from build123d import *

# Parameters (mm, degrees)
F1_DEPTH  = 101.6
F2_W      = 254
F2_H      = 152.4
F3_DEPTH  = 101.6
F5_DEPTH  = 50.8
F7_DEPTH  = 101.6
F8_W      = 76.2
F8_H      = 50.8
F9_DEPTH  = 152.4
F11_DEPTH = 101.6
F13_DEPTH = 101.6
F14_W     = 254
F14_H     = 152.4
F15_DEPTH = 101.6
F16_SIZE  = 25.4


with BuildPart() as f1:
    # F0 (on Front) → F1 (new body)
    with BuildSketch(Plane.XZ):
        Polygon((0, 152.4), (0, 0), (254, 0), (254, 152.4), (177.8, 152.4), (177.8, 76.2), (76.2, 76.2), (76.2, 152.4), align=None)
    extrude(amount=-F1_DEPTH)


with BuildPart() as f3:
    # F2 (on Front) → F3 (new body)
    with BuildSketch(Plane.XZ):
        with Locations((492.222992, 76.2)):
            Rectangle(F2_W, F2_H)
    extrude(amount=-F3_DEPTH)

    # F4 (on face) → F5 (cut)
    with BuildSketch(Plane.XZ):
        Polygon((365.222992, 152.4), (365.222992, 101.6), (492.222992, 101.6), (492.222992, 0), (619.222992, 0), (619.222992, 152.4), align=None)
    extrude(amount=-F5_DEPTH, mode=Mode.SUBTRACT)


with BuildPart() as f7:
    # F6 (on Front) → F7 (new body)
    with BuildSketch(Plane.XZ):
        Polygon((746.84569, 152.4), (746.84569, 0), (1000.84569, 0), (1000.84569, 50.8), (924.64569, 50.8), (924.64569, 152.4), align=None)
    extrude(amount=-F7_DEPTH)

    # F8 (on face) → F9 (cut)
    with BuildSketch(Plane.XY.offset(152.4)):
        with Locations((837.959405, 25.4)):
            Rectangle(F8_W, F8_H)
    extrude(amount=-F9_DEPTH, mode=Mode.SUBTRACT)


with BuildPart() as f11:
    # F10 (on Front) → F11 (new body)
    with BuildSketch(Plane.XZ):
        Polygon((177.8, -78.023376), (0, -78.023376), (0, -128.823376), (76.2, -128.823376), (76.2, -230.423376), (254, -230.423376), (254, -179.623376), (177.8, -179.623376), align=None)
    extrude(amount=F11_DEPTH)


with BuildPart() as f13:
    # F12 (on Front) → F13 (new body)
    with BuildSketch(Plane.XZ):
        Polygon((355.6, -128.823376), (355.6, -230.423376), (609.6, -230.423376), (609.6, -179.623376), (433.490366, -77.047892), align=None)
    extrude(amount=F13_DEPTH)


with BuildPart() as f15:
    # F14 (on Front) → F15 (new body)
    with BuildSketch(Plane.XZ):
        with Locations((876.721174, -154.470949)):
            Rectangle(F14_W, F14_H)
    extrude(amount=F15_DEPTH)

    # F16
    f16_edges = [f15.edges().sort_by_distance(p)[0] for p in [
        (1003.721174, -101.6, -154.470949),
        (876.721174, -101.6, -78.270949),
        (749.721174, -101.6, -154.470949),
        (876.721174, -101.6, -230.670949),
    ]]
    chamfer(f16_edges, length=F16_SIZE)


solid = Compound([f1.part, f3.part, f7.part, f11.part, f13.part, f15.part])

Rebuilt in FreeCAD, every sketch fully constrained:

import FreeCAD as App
import Part
import Sketcher

V = App.Vector
Q = App.Units.Quantity


def edges_at(feature, points):
    """Names of the edges that pass closest to the given points."""
    edges = feature.Shape.Edges
    near = lambda p: min(range(len(edges)), key=lambda i: edges[i].distToShape(Part.Vertex(*p))[0])
    return sorted({f"Edge{near(p) + 1}" for p in points})

doc = App.newDocument("Part")
body = doc.addObject("PartDesign::Body", "Body")

# Sketch on XZ plane
sketch1 = body.newObject("Sketcher::SketchObject", "Sketch")
sketch1.AttachmentSupport = (doc.getObject("XZ_Plane"), [""])
sketch1.MapMode = "FlatFace"
sketch1.addGeometry([
    Part.LineSegment(V(0, 152.4, 0), V(0, 0, 0)),  # 0
    Part.LineSegment(V(0, 0, 0), V(254, 0, 0)),  # 1
    Part.LineSegment(V(254, 0, 0), V(254, 152.4, 0)),  # 2
    Part.LineSegment(V(254, 152.4, 0), V(177.8, 152.4, 0)),  # 3
    Part.LineSegment(V(177.8, 152.4, 0), V(177.8, 76.2, 0)),  # 4
    Part.LineSegment(V(177.8, 76.2, 0), V(76.2, 76.2, 0)),  # 5
    Part.LineSegment(V(76.2, 76.2, 0), V(76.2, 152.4, 0)),  # 6
    Part.LineSegment(V(76.2, 152.4, 0), V(0, 152.4, 0)),  # 7
], False)
sketch1.addConstraint([
    Sketcher.Constraint("Coincident", 0, 2, 1, 1),
    Sketcher.Constraint("Coincident", 1, 2, 2, 1),
    Sketcher.Constraint("Coincident", 2, 2, 3, 1),
    Sketcher.Constraint("Coincident", 3, 2, 4, 1),
    Sketcher.Constraint("Coincident", 4, 2, 5, 1),
    Sketcher.Constraint("Coincident", 5, 2, 6, 1),
    Sketcher.Constraint("Coincident", 6, 2, 7, 1),
    Sketcher.Constraint("Coincident", 7, 2, 0, 1),
    Sketcher.Constraint("Vertical", 0),
    Sketcher.Constraint("Horizontal", 1),
    Sketcher.Constraint("Vertical", 2),
    Sketcher.Constraint("Horizontal", 3),
    Sketcher.Constraint("Vertical", 4),
    Sketcher.Constraint("Horizontal", 5),
    Sketcher.Constraint("Vertical", 6),
    Sketcher.Constraint("Horizontal", 7),
    Sketcher.Constraint("Coincident", 0, 2, -1, 1),
    Sketcher.Constraint("Horizontal", 3, 2, 6, 2),
    Sketcher.Constraint("Equal", 3, 7),
    Sketcher.Constraint("Equal", 7, 4),
    Sketcher.Constraint("DistanceX", 1, 1, 1, 2, Q("10 in")),
    Sketcher.Constraint("DistanceX", 3, 2, 3, 1, Q("3 in")),
    Sketcher.Constraint("DistanceY", 0, 2, 0, 1, Q("6 in")),
])
pad1 = body.newObject("PartDesign::Pad", "Pad")
pad1.Profile = sketch1
pad1.Length = Q("4 in")
pad1.Reversed = True
body2 = doc.addObject("PartDesign::Body", "Body001")

# Sketch on XZ plane
sketch2 = body2.newObject("Sketcher::SketchObject", "Sketch001")
sketch2.AttachmentSupport = (doc.getObject("XZ_Plane001"), [""])
sketch2.MapMode = "FlatFace"
sketch2.addGeometry([
    Part.LineSegment(V(365.222992, 152.4, 0), V(365.222992, 0, 0)),
    Part.LineSegment(V(365.222992, 0, 0), V(619.222992, 0, 0)),
    Part.LineSegment(V(619.222992, 0, 0), V(619.222992, 152.4, 0)),
    Part.LineSegment(V(619.222992, 152.4, 0), V(365.222992, 152.4, 0)),
], False)
sketch2.addConstraint([
    Sketcher.Constraint("Coincident", 0, 2, 1, 1),
    Sketcher.Constraint("Coincident", 1, 2, 2, 1),
    Sketcher.Constraint("Coincident", 2, 2, 3, 1),
    Sketcher.Constraint("Coincident", 3, 2, 0, 1),
    Sketcher.Constraint("Vertical", 0),
    Sketcher.Constraint("Horizontal", 1),
    Sketcher.Constraint("Vertical", 2),
    Sketcher.Constraint("Horizontal", 3),
    Sketcher.Constraint("PointOnObject", 0, 2, -1),
    Sketcher.Constraint("DistanceX", 1, 1, 1, 2, Q("10 in")),
    Sketcher.Constraint("DistanceY", 0, 2, 0, 1, Q("6 in")),
    Sketcher.Constraint("DistanceX", -1, 1, 0, 2, Q("365.222992 mm")),
])
pad2 = body2.newObject("PartDesign::Pad", "Pad001")
pad2.Profile = sketch2
pad2.Length = Q("4 in")
pad2.Reversed = True

# Sketch on XZ plane
sketch3 = body2.newObject("Sketcher::SketchObject", "Sketch002")
sketch3.AttachmentSupport = (doc.getObject("XZ_Plane001"), [""])
sketch3.MapMode = "FlatFace"
sketch3.addGeometry([
    Part.LineSegment(V(365.222992, 152.4, 0), V(365.222992, 101.6, 0)),  # 0
    Part.LineSegment(V(365.222992, 101.6, 0), V(492.222992, 101.6, 0)),  # 1
    Part.LineSegment(V(492.222992, 101.6, 0), V(492.222992, 0, 0)),  # 2
    Part.LineSegment(V(492.222992, 0, 0), V(619.222992, 0, 0)),  # 3
    Part.LineSegment(V(619.222992, 0, 0), V(619.222992, 152.4, 0)),  # 4
    Part.LineSegment(V(619.222992, 152.4, 0), V(365.222992, 152.4, 0)),  # 5
], False)
sketch3.addConstraint([
    Sketcher.Constraint("Coincident", 0, 2, 1, 1),
    Sketcher.Constraint("Coincident", 1, 2, 2, 1),
    Sketcher.Constraint("Coincident", 2, 2, 3, 1),
    Sketcher.Constraint("Coincident", 3, 2, 4, 1),
    Sketcher.Constraint("Coincident", 4, 2, 5, 1),
    Sketcher.Constraint("Coincident", 5, 2, 0, 1),
    Sketcher.Constraint("Vertical", 0),
    Sketcher.Constraint("Horizontal", 1),
    Sketcher.Constraint("Vertical", 2),
    Sketcher.Constraint("Horizontal", 3),
    Sketcher.Constraint("Vertical", 4),
    Sketcher.Constraint("Horizontal", 5),
    Sketcher.Constraint("PointOnObject", 2, 2, -1),
    Sketcher.Constraint("Equal", 1, 3),
    Sketcher.Constraint("DistanceX", 1, 1, 1, 2, Q("5 in")),
    Sketcher.Constraint("DistanceY", 0, 2, 0, 1, Q("2 in")),
    Sketcher.Constraint("DistanceY", 2, 2, 2, 1, Q("4 in")),
    Sketcher.Constraint("DistanceX", -1, 1, 0, 2, Q("365.222992 mm")),
])
pocket1 = body2.newObject("PartDesign::Pocket", "Pocket")
pocket1.Profile = sketch3
pocket1.Length = Q("2 in")
body3 = doc.addObject("PartDesign::Body", "Body002")

# Sketch on XZ plane
sketch4 = body3.newObject("Sketcher::SketchObject", "Sketch003")
sketch4.AttachmentSupport = (doc.getObject("XZ_Plane002"), [""])
sketch4.MapMode = "FlatFace"
sketch4.addGeometry([
    Part.LineSegment(V(746.84569, 152.4, 0), V(746.84569, 0, 0)),  # 0
    Part.LineSegment(V(746.84569, 0, 0), V(1000.84569, 0, 0)),  # 1
    Part.LineSegment(V(1000.84569, 0, 0), V(1000.84569, 50.8, 0)),  # 2
    Part.LineSegment(V(1000.84569, 50.8, 0), V(924.64569, 50.8, 0)),  # 3
    Part.LineSegment(V(924.64569, 50.8, 0), V(924.64569, 152.4, 0)),  # 4
    Part.LineSegment(V(924.64569, 152.4, 0), V(746.84569, 152.4, 0)),  # 5
], False)
sketch4.addConstraint([
    Sketcher.Constraint("Coincident", 0, 2, 1, 1),
    Sketcher.Constraint("Coincident", 1, 2, 2, 1),
    Sketcher.Constraint("Coincident", 2, 2, 3, 1),
    Sketcher.Constraint("Coincident", 3, 2, 4, 1),
    Sketcher.Constraint("Coincident", 4, 2, 5, 1),
    Sketcher.Constraint("Coincident", 5, 2, 0, 1),
    Sketcher.Constraint("Vertical", 0),
    Sketcher.Constraint("Horizontal", 1),
    Sketcher.Constraint("Vertical", 2),
    Sketcher.Constraint("Horizontal", 3),
    Sketcher.Constraint("Vertical", 4),
    Sketcher.Constraint("Horizontal", 5),
    Sketcher.Constraint("PointOnObject", 0, 2, -1),
    Sketcher.Constraint("DistanceX", 1, 1, 1, 2, Q("10 in")),
    Sketcher.Constraint("DistanceX", 3, 2, 3, 1, Q("3 in")),
    Sketcher.Constraint("DistanceY", 0, 2, 0, 1, Q("6 in")),
    Sketcher.Constraint("DistanceY", 2, 1, 2, 2, Q("2 in")),
    Sketcher.Constraint("DistanceX", -1, 1, 0, 2, Q("746.84569 mm")),
])
pad3 = body3.newObject("PartDesign::Pad", "Pad002")
pad3.Profile = sketch4
pad3.Length = Q("4 in")
pad3.Reversed = True

# Sketch on XY plane
sketch5 = body3.newObject("Sketcher::SketchObject", "Sketch004")
sketch5.AttachmentSupport = (doc.getObject("XY_Plane002"), [""])
sketch5.MapMode = "FlatFace"
sketch5.AttachmentOffset = App.Placement(V(0, 0, 6 * 25.4), App.Rotation())
sketch5.addGeometry([
    Part.LineSegment(V(799.859405, 50.8, 0), V(799.859405, 0, 0)),
    Part.LineSegment(V(799.859405, 0, 0), V(876.059405, 0, 0)),
    Part.LineSegment(V(876.059405, 0, 0), V(876.059405, 50.8, 0)),
    Part.LineSegment(V(876.059405, 50.8, 0), V(799.859405, 50.8, 0)),
], False)
sketch5.addConstraint([
    Sketcher.Constraint("Coincident", 0, 2, 1, 1),
    Sketcher.Constraint("Coincident", 1, 2, 2, 1),
    Sketcher.Constraint("Coincident", 2, 2, 3, 1),
    Sketcher.Constraint("Coincident", 3, 2, 0, 1),
    Sketcher.Constraint("Vertical", 0),
    Sketcher.Constraint("Horizontal", 1),
    Sketcher.Constraint("Vertical", 2),
    Sketcher.Constraint("Horizontal", 3),
    Sketcher.Constraint("PointOnObject", 0, 2, -1),
    Sketcher.Constraint("DistanceX", 1, 1, 1, 2, Q("3 in")),
    Sketcher.Constraint("DistanceY", 0, 2, 0, 1, Q("2 in")),
    Sketcher.Constraint("DistanceX", -1, 1, 0, 2, Q("799.859405 mm")),
])
pocket2 = body3.newObject("PartDesign::Pocket", "Pocket001")
pocket2.Profile = sketch5
pocket2.Length = Q("6 in")
body4 = doc.addObject("PartDesign::Body", "Body003")

# Sketch on XZ plane
sketch6 = body4.newObject("Sketcher::SketchObject", "Sketch005")
sketch6.AttachmentSupport = (doc.getObject("XZ_Plane003"), [""])
sketch6.MapMode = "FlatFace"
sketch6.addGeometry([
    Part.LineSegment(V(177.8, -78.023376, 0), V(0, -78.023376, 0)),  # 0
    Part.LineSegment(V(0, -78.023376, 0), V(0, -128.823376, 0)),  # 1
    Part.LineSegment(V(0, -128.823376, 0), V(76.2, -128.823376, 0)),  # 2
    Part.LineSegment(V(76.2, -128.823376, 0), V(76.2, -230.423376, 0)),  # 3
    Part.LineSegment(V(76.2, -230.423376, 0), V(254, -230.423376, 0)),  # 4
    Part.LineSegment(V(254, -230.423376, 0), V(254, -179.623376, 0)),  # 5
    Part.LineSegment(V(254, -179.623376, 0), V(177.8, -179.623376, 0)),  # 6
    Part.LineSegment(V(177.8, -179.623376, 0), V(177.8, -78.023376, 0)),  # 7
], False)
sketch6.addConstraint([
    Sketcher.Constraint("Coincident", 0, 2, 1, 1),
    Sketcher.Constraint("Coincident", 1, 2, 2, 1),
    Sketcher.Constraint("Coincident", 2, 2, 3, 1),
    Sketcher.Constraint("Coincident", 3, 2, 4, 1),
    Sketcher.Constraint("Coincident", 4, 2, 5, 1),
    Sketcher.Constraint("Coincident", 5, 2, 6, 1),
    Sketcher.Constraint("Coincident", 6, 2, 7, 1),
    Sketcher.Constraint("Coincident", 7, 2, 0, 1),
    Sketcher.Constraint("Horizontal", 0),
    Sketcher.Constraint("Vertical", 1),
    Sketcher.Constraint("Horizontal", 2),
    Sketcher.Constraint("Vertical", 3),
    Sketcher.Constraint("Horizontal", 4),
    Sketcher.Constraint("Vertical", 5),
    Sketcher.Constraint("Horizontal", 6),
    Sketcher.Constraint("Vertical", 7),
    Sketcher.Constraint("PointOnObject", 0, 2, -2),
    Sketcher.Constraint("Equal", 0, 4),
    Sketcher.Constraint("Equal", 1, 5),
    Sketcher.Constraint("DistanceX", 0, 2, 0, 1, Q("7 in")),
    Sketcher.Constraint("DistanceX", 2, 1, 2, 2, Q("3 in")),
    Sketcher.Constraint("DistanceY", 1, 2, 1, 1, Q("2 in")),
    Sketcher.Constraint("DistanceY", 3, 2, 3, 1, Q("4 in")),
    Sketcher.Constraint("DistanceY", 0, 2, -1, 1, Q("78.023376 mm")),
])
pad4 = body4.newObject("PartDesign::Pad", "Pad003")
pad4.Profile = sketch6
pad4.Length = Q("4 in")
body5 = doc.addObject("PartDesign::Body", "Body004")

# Sketch on XZ plane
sketch7 = body5.newObject("Sketcher::SketchObject", "Sketch006")
sketch7.AttachmentSupport = (doc.getObject("XZ_Plane004"), [""])
sketch7.MapMode = "FlatFace"
sketch7.addGeometry([
    Part.LineSegment(V(355.6, -128.823376, 0), V(355.6, -230.423376, 0)),  # 0
    Part.LineSegment(V(355.6, -230.423376, 0), V(609.6, -230.423376, 0)),  # 1
    Part.LineSegment(V(609.6, -230.423376, 0), V(609.6, -179.623376, 0)),  # 2
    Part.LineSegment(V(609.6, -179.623376, 0), V(433.490366, -77.047892, 0)),  # 3
    Part.LineSegment(V(433.490366, -77.047892, 0), V(355.6, -128.823376, 0)),  # 4
], False)
sketch7.addConstraint([
    Sketcher.Constraint("Coincident", 0, 2, 1, 1),
    Sketcher.Constraint("Coincident", 1, 2, 2, 1),
    Sketcher.Constraint("Coincident", 2, 2, 3, 1),
    Sketcher.Constraint("Coincident", 3, 2, 4, 1),
    Sketcher.Constraint("Coincident", 4, 2, 0, 1),
    Sketcher.Constraint("Vertical", 0),
    Sketcher.Constraint("Horizontal", 1),
    Sketcher.Constraint("Vertical", 2),
    Sketcher.Constraint("DistanceX", 1, 1, 1, 2, Q("10 in")),
    Sketcher.Constraint("DistanceY", 0, 2, 0, 1, Q("4 in")),
    Sketcher.Constraint("DistanceY", 2, 1, 2, 2, Q("2 in")),
    Sketcher.Constraint("DistanceX", -1, 1, 0, 2, Q("14 in")),
    Sketcher.Constraint("Distance", 3, Q("203.804644 mm")),
    Sketcher.Constraint("Distance", 4, Q("93.528658 mm")),
    Sketcher.Constraint("DistanceY", 0, 2, -1, 1, Q("230.423376 mm")),
])
pad5 = body5.newObject("PartDesign::Pad", "Pad004")
pad5.Profile = sketch7
pad5.Length = Q("4 in")
body6 = doc.addObject("PartDesign::Body", "Body005")

# Sketch on XZ plane
sketch8 = body6.newObject("Sketcher::SketchObject", "Sketch007")
sketch8.AttachmentSupport = (doc.getObject("XZ_Plane005"), [""])
sketch8.MapMode = "FlatFace"
sketch8.addGeometry([
    Part.LineSegment(V(749.721174, -78.270949, 0), V(749.721174, -230.670949, 0)),
    Part.LineSegment(V(749.721174, -230.670949, 0), V(1003.721174, -230.670949, 0)),
    Part.LineSegment(V(1003.721174, -230.670949, 0), V(1003.721174, -78.270949, 0)),
    Part.LineSegment(V(1003.721174, -78.270949, 0), V(749.721174, -78.270949, 0)),
], False)
sketch8.addConstraint([
    Sketcher.Constraint("Coincident", 0, 2, 1, 1),
    Sketcher.Constraint("Coincident", 1, 2, 2, 1),
    Sketcher.Constraint("Coincident", 2, 2, 3, 1),
    Sketcher.Constraint("Coincident", 3, 2, 0, 1),
    Sketcher.Constraint("Vertical", 0),
    Sketcher.Constraint("Horizontal", 1),
    Sketcher.Constraint("Vertical", 2),
    Sketcher.Constraint("Horizontal", 3),
    Sketcher.Constraint("DistanceX", 1, 1, 1, 2, Q("10 in")),
    Sketcher.Constraint("DistanceY", 0, 2, 0, 1, Q("6 in")),
    Sketcher.Constraint("DistanceY", 0, 2, -1, 1, Q("230.670949 mm")),
    Sketcher.Constraint("DistanceX", -1, 1, 0, 2, Q("749.721174 mm")),
])
pad6 = body6.newObject("PartDesign::Pad", "Pad005")
pad6.Profile = sketch8
pad6.Length = Q("4 in")
doc.recompute()

chamfer = body6.newObject("PartDesign::Chamfer", "Chamfer")
chamfer.Base = (pad6, edges_at(pad6, [
    (1003.721, -101.6, -154.471),
    (876.721, -101.6, -78.271),
    (749.721, -101.6, -154.471),
    (876.721, -101.6, -230.671),
]))
chamfer.Size = Q("1 in")

doc.recompute()
